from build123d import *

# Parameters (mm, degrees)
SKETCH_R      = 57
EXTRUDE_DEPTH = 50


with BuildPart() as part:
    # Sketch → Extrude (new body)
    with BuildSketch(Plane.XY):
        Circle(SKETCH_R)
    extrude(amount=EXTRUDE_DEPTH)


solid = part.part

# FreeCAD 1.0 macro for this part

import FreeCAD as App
import Part
import Sketcher
from FreeCAD import Vector

doc = App.newDocument("Part")
body = doc.addObject("PartDesign::Body", "Body")

# Sketch on XY plane
sketch1 = doc.addObject("Sketcher::SketchObject", "Sketch")
body.addObject(sketch1)
sketch1.AttachmentSupport = (doc.XY_Plane, [""])
sketch1.MapMode = "FlatFace"
sketch1.addGeometry(Part.Circle(Vector(0, 0, 0), Vector(0, 0, 1), 57), False)
sketch1.addConstraint([
    Sketcher.Constraint("Coincident", 0, 3, -1, 1),
    Sketcher.Constraint("Diameter", 0, 114.0),
])
pad1 = doc.addObject("PartDesign::Pad", "Pad")
body.addObject(pad1)
pad1.Profile = sketch1
pad1.Length = 50

doc.recompute()
